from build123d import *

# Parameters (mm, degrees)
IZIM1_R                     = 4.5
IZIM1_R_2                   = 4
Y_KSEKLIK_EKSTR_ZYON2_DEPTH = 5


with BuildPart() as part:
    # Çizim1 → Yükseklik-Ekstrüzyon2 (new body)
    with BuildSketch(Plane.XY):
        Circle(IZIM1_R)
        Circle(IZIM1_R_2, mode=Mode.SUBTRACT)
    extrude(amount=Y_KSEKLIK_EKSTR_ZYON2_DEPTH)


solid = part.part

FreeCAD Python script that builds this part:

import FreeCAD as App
import Part
import Sketcher
from FreeCAD import Vector

doc = App.newDocument("Part")
body = doc.addObject("PartDesign::Body", "Body")

# Sketch on XY plane
sketch1 = body.newObject("Sketcher::SketchObject", "Sketch")
sketch1.AttachmentSupport = (doc.getObject("XY_Plane"), [""])
sketch1.MapMode = "FlatFace"
sketch1.addGeometry(Part.Circle(Vector(0, 0, 0), Vector(0, 0, 1), 4.5), False)
sketch1.addGeometry(Part.Circle(Vector(0, 0, 0), Vector(0, 0, 1), 4), False)
sketch1.addConstraint(Sketcher.Constraint("Coincident", 0, 3, -1, 1))
sketch1.addConstraint(Sketcher.Constraint("Coincident", 1, 3, -1, 1))
sketch1.addConstraint(Sketcher.Constraint("Diameter", 0, 9.0))
sketch1.addConstraint(Sketcher.Constraint("Diameter", 1, 8.0))
pad1 = body.newObject("PartDesign::Pad", "Pad")
pad1.Profile = sketch1
pad1.Length = 5

doc.recompute()
